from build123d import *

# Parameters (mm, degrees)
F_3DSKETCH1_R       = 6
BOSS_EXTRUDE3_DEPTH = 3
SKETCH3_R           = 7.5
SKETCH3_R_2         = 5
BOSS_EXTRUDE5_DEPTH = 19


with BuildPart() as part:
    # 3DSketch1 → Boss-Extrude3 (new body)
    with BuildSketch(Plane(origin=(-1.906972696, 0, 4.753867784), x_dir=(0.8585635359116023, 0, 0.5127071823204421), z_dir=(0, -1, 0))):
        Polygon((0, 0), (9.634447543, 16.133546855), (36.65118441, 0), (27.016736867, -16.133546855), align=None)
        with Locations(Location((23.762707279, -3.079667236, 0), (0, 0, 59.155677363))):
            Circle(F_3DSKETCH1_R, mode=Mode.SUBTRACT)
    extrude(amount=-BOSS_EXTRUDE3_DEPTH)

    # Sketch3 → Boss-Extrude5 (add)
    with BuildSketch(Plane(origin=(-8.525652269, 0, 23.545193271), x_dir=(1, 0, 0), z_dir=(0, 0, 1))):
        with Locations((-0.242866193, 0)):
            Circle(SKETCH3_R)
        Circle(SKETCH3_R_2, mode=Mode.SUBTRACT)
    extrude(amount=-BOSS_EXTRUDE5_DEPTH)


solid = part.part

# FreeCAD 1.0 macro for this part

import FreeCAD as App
import Part
import Sketcher
from FreeCAD import Vector

doc = App.newDocument("Part")
body = doc.addObject("PartDesign::Body", "Body")

# Sketch on XZ plane
sketch1 = body.newObject("Sketcher::SketchObject", "Sketch")
sketch1.AttachmentSupport = (doc.getObject("XZ_Plane"), [""])
sketch1.MapMode = "FlatFace"
sketch1.addGeometry([
    Part.LineSegment(Vector(-2, 24, 0), Vector(-2, 5, 0)),  # 0
    Part.LineSegment(Vector(-2, 5, 0), Vector(30, 5, 0)),  # 1
    Part.LineSegment(Vector(30, 5, 0), Vector(30, 24, 0)),  # 2
    Part.LineSegment(Vector(30, 24, 0), Vector(-2, 24, 0)),  # 3
    Part.Circle(Vector(20, 14, 0), Vector(0, 0, 1), 6),  # 4
], False)
sketch1.addConstraint([
    Sketcher.Constraint("Coincident", 0, 2, 1, 1),
    Sketcher.Constraint("Coincident", 1, 2, 2, 1),
    Sketcher.Constraint("Coincident", 2, 2, 3, 1),
    Sketcher.Constraint("Coincident", 3, 2, 0, 1),
    Sketcher.Constraint("Vertical", 0),
    Sketcher.Constraint("Horizontal", 1),
    Sketcher.Constraint("Vertical", 2),
    Sketcher.Constraint("Horizontal", 3),
    Sketcher.Constraint("Diameter", 4, 12.0),
    Sketcher.Constraint("DistanceX", 1, 1, 1, 2, 31.46737),
    Sketcher.Constraint("DistanceY", 0, 2, 0, 1, 18.791325),
    Sketcher.Constraint("DistanceX", -1, 1, 4, 3, 20.073789),
    Sketcher.Constraint("DistanceY", -1, 1, 4, 3, 14.293088),
    Sketcher.Constraint("DistanceX", 0, 2, 4, 3, 21.980761),
    Sketcher.Constraint("DistanceY", 0, 2, 4, 3, 9.539221),
])
pad1 = body.newObject("PartDesign::Pad", "Pad")
pad1.Profile = sketch1
pad1.Length = 3
pad1.Reversed = True

# Sketch on XY plane
sketch2 = body.newObject("Sketcher::SketchObject", "Sketch001")
sketch2.AttachmentSupport = (doc.getObject("XY_Plane"), [""])
sketch2.MapMode = "FlatFace"
sketch2.AttachmentOffset = App.Placement(Vector(0, 0, 23.545193), App.Rotation())
sketch2.addGeometry([
    Part.Circle(Vector(-9, 0, 0), Vector(0, 0, 1), 8),
    Part.Circle(Vector(-9, 0, 0), Vector(0, 0, 1), 5),
], False)
sketch2.addConstraint([
    Sketcher.Constraint("PointOnObject", 0, 3, -1),
    Sketcher.Constraint("PointOnObject", 1, 3, -1),
    Sketcher.Constraint("Diameter", 0, 15.0),
    Sketcher.Constraint("Diameter", 1, 10.0),
    Sketcher.Constraint("DistanceX", 0, 3, -1, 1, 8.768518),
    Sketcher.Constraint("DistanceX", 1, 3, -1, 1, 8.525652),
])
pad2 = body.newObject("PartDesign::Pad", "Pad001")
pad2.Profile = sketch2
pad2.Length = 19
pad2.Reversed = True

doc.recompute()
